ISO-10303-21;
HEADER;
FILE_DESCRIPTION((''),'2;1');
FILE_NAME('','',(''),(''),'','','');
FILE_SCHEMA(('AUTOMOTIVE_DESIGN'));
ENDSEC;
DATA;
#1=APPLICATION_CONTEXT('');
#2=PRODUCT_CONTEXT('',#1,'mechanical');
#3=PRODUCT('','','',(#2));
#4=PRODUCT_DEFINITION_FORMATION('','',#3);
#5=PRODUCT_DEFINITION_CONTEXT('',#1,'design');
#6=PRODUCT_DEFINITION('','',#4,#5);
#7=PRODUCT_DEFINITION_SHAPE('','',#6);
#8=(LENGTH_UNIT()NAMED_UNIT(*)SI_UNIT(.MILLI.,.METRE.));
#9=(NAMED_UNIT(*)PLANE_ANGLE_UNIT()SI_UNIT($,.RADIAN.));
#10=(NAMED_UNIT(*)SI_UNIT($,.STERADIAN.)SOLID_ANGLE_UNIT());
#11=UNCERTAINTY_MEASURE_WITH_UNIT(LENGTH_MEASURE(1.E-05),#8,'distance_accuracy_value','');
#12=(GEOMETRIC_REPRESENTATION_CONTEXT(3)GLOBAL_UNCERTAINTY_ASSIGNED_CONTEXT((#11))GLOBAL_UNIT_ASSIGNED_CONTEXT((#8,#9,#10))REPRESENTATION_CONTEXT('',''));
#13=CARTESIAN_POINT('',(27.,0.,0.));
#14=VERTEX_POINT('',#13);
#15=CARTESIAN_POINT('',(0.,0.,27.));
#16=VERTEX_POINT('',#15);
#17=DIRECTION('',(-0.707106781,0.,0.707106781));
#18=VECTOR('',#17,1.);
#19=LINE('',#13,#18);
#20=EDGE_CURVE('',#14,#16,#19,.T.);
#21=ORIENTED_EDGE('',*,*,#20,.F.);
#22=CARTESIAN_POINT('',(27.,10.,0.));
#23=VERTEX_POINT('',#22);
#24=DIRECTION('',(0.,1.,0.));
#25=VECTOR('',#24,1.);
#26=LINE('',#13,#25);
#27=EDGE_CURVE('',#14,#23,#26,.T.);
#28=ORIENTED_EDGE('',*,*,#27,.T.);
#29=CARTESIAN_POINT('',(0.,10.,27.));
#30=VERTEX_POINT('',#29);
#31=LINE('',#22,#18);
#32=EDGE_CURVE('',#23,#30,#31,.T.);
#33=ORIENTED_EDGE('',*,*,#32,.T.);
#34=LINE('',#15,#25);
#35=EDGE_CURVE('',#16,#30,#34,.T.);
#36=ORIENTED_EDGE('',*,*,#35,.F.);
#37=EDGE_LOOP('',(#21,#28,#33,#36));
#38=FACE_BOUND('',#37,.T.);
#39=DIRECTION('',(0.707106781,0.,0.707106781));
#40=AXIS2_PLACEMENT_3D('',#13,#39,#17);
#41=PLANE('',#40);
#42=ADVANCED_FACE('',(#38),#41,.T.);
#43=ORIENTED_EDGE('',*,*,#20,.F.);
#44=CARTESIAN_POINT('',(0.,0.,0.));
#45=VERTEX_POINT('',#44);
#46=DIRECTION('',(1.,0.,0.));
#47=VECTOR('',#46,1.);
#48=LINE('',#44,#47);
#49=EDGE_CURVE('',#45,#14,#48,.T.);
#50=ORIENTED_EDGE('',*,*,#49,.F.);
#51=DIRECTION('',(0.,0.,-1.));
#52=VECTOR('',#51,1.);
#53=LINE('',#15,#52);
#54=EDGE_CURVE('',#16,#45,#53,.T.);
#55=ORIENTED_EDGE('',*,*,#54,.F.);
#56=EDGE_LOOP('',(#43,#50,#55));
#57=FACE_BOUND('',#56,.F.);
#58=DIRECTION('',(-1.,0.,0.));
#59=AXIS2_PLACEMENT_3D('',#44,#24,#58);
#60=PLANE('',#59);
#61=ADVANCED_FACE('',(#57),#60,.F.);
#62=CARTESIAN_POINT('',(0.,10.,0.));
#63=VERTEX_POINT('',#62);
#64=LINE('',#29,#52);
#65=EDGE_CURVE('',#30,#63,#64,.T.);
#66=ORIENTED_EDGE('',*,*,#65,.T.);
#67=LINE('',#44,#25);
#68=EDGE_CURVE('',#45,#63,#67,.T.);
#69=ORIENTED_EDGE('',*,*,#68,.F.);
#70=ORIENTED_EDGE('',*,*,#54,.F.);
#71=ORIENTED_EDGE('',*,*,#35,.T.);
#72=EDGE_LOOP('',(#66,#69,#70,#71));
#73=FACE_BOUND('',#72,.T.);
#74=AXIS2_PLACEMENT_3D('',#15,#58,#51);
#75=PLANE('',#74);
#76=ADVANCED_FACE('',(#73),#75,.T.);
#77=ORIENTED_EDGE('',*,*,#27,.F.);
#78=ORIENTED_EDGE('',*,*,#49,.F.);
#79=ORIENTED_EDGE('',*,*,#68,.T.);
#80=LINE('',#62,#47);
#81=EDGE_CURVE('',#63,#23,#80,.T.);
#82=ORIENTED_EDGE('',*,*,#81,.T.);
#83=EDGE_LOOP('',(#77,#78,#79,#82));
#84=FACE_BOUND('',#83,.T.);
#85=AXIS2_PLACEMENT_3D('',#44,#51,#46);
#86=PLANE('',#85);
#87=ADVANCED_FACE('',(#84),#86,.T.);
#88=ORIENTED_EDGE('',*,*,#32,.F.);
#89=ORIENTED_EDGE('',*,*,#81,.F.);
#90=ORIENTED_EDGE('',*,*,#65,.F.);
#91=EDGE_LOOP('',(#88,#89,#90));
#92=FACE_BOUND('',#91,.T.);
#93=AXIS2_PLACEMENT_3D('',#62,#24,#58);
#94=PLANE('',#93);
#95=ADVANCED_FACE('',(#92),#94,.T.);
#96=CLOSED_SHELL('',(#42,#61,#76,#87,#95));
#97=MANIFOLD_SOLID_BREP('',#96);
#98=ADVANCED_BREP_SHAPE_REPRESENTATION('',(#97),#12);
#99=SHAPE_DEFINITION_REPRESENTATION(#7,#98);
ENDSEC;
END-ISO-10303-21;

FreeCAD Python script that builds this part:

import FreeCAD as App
import Part
import Sketcher
from FreeCAD import Vector
Q = App.Units.Quantity


def add_polygon(sketch, points):
    """Adds a closed chain of lines whose ends are joined by coincident constraints."""
    first, n = sketch.GeometryCount, len(points)
    for a, b in zip(points, points[1:] + points[:1]):
        sketch.addGeometry(Part.LineSegment(App.Vector(*a, 0), App.Vector(*b, 0)), False)
    for i in range(n):
        sketch.addConstraint(Sketcher.Constraint("Coincident", first + i, 2, first + (i + 1) % n, 1))

doc = App.newDocument("Part")
body = doc.addObject("PartDesign::Body", "Body")

# Sketch on XZ plane
sketch1 = body.newObject("Sketcher::SketchObject", "Sketch")
sketch1.AttachmentSupport = (doc.getObject("XZ_Plane"), [""])
sketch1.MapMode = "FlatFace"
add_polygon(sketch1, [(27, 0), (0, 0), (0, 27)])  # lines 0-2
sketch1.addConstraint([
    Sketcher.Constraint("Horizontal", 0),
    Sketcher.Constraint("Vertical", 1),
    Sketcher.Constraint("Coincident", 0, 2, -1, 1),
    Sketcher.Constraint("Equal", 0, 1),
    Sketcher.Constraint("DistanceX", 0, 2, 0, 1, Q("1.063 in")),
])
pad1 = body.newObject("PartDesign::Pad", "Pad")
pad1.Profile = sketch1
pad1.Length = Q("0.3937008 in")
pad1.Reversed = True

doc.recompute()
